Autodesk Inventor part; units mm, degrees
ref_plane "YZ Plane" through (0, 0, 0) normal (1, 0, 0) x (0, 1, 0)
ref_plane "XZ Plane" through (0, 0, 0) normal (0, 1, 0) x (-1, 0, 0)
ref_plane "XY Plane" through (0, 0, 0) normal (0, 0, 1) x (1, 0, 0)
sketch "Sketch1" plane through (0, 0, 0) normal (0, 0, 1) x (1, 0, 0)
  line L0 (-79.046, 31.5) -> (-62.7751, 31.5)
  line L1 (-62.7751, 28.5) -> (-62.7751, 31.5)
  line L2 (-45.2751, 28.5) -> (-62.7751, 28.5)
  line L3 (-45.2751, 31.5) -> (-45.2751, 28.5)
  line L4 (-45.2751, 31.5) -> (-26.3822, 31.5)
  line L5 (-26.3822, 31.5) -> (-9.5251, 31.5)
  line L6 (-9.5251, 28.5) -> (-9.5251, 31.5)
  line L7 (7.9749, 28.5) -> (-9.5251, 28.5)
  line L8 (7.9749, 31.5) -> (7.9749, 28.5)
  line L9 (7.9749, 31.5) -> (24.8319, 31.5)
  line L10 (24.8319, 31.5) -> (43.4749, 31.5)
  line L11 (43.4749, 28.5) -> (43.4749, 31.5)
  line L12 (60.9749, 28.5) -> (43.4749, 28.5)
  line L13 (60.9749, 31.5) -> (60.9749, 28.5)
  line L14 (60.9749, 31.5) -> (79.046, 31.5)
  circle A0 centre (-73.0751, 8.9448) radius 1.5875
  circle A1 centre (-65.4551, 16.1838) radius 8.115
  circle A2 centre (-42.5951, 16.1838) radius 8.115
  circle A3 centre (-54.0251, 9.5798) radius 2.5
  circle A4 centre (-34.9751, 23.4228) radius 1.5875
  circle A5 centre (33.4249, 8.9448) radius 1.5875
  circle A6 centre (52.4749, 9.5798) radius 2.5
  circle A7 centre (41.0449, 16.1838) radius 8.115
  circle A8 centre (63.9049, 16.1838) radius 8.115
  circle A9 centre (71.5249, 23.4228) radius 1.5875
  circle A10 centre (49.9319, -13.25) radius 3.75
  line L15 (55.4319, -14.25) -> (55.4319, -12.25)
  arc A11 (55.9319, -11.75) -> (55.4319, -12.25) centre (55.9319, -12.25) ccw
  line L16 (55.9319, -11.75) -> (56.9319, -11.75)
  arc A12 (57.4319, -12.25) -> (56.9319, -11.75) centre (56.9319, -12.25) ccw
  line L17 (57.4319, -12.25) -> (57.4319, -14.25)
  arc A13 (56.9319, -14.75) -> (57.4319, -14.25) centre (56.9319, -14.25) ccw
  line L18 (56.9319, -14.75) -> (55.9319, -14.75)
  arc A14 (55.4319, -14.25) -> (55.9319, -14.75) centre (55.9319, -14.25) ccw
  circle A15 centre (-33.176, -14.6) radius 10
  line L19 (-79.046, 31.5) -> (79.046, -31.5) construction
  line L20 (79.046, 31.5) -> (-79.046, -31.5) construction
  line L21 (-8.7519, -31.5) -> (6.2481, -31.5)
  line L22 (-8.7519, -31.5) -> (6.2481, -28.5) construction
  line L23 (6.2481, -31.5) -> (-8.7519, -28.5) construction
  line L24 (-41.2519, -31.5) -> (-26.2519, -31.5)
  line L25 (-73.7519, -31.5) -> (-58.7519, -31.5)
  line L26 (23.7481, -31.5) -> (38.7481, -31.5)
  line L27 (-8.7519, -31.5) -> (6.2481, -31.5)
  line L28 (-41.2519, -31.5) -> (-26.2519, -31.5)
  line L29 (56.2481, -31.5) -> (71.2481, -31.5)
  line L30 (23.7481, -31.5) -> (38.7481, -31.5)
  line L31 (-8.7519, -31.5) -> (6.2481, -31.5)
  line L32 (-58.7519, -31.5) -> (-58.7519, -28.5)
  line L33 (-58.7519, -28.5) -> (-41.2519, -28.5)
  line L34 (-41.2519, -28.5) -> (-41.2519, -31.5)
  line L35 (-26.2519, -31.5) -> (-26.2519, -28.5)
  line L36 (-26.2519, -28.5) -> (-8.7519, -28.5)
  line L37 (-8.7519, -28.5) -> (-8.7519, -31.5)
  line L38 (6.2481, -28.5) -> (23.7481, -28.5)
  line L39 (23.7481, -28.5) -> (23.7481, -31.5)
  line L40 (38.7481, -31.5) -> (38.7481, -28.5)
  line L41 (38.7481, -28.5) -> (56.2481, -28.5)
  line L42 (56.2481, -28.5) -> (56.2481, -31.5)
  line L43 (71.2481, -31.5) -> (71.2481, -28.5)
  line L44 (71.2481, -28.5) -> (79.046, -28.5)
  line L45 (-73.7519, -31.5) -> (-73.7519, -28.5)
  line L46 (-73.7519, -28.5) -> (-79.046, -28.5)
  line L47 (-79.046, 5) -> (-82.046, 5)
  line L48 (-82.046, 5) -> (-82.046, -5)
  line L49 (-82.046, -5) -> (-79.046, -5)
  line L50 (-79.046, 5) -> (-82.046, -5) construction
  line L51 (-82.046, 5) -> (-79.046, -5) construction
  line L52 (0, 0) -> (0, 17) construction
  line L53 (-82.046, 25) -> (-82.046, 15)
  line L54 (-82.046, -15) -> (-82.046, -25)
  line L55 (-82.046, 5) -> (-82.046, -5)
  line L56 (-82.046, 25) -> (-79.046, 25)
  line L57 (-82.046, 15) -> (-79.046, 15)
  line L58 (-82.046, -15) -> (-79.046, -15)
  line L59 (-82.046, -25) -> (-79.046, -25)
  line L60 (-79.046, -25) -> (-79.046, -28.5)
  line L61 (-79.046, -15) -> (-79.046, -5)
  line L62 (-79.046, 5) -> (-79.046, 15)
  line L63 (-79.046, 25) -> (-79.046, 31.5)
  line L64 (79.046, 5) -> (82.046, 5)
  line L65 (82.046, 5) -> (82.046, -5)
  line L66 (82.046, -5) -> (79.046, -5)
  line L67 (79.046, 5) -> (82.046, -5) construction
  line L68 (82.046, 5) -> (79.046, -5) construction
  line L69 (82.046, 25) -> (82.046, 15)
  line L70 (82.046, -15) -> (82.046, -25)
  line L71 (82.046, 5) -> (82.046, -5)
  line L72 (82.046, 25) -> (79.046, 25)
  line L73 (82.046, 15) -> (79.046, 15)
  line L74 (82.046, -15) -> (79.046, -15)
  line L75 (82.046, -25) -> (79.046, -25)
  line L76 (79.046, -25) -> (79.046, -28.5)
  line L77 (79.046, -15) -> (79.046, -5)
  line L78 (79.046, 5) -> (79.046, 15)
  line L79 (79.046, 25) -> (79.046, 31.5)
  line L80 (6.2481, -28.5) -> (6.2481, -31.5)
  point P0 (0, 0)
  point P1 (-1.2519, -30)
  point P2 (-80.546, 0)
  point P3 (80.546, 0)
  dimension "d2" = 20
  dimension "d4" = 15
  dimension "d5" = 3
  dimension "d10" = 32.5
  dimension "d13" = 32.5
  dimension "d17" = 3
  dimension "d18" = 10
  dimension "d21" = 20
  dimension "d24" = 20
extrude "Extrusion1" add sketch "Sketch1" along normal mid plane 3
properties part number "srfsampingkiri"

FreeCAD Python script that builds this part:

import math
import FreeCAD as App
import Part
import Sketcher
from FreeCAD import Vector
Q = App.Units.Quantity

doc = App.newDocument("Part")
params = doc.addObject("Spreadsheet::Sheet", "Params")
for row, (alias, value) in enumerate([
    ("sketch1_diameter", "20 mm"),
    ("sketch1_width", "3 mm"),
    ("sketch1_width2", "15 mm"),
    ("sketch1_height", "10 mm"),
    ("sketch1_diameter2", "5 mm"),
    ("pad1_length", "3 mm"),
], start=1):
    params.set(f"A{row}", alias)
    params.set(f"B{row}", "=" + value)
    params.setAlias(f"B{row}", alias)

body = doc.addObject("PartDesign::Body", "Body")

# Sketch on XY plane
sketch1 = doc.addObject("Sketcher::SketchObject", "Sketch")
body.addObject(sketch1)
sketch1.AttachmentSupport = (doc.XY_Plane, [""])
sketch1.MapMode = "FlatFace"
sketch1.addGeometry([
    Part.LineSegment(Vector(-62.8, 31.5, 0), Vector(-79, 31.5, 0)),  # 0
    Part.LineSegment(Vector(-79, 31.5, 0), Vector(-79, 25, 0)),  # 1
    Part.LineSegment(Vector(-79, 25, 0), Vector(-82, 25, 0)),  # 2
    Part.LineSegment(Vector(-82, 25, 0), Vector(-82, 15, 0)),  # 3
    Part.LineSegment(Vector(-82, 15, 0), Vector(-79, 15, 0)),  # 4
    Part.LineSegment(Vector(-79, 15, 0), Vector(-79, 5, 0)),  # 5
    Part.LineSegment(Vector(-79, 5, 0), Vector(-82, 5, 0)),  # 6
    Part.LineSegment(Vector(-82, 5, 0), Vector(-82, -5, 0)),  # 7
    Part.LineSegment(Vector(-82, -5, 0), Vector(-79, -5, 0)),  # 8
    Part.LineSegment(Vector(-79, -5, 0), Vector(-79, -15, 0)),  # 9
    Part.LineSegment(Vector(-79, -15, 0), Vector(-82, -15, 0)),  # 10
    Part.LineSegment(Vector(-82, -15, 0), Vector(-82, -25, 0)),  # 11
    Part.LineSegment(Vector(-82, -25, 0), Vector(-79, -25, 0)),  # 12
    Part.LineSegment(Vector(-79, -25, 0), Vector(-79, -28.5, 0)),  # 13
    Part.LineSegment(Vector(-79, -28.5, 0), Vector(-73.8, -28.5, 0)),  # 14
    Part.LineSegment(Vector(-73.8, -28.5, 0), Vector(-73.8, -31.5, 0)),  # 15
    Part.LineSegment(Vector(-73.8, -31.5, 0), Vector(-58.8, -31.5, 0)),  # 16
    Part.LineSegment(Vector(-58.8, -31.5, 0), Vector(-58.8, -28.5, 0)),  # 17
    Part.LineSegment(Vector(-58.8, -28.5, 0), Vector(-41.3, -28.5, 0)),  # 18
    Part.LineSegment(Vector(-41.3, -28.5, 0), Vector(-41.3, -31.5, 0)),  # 19
    Part.LineSegment(Vector(-41.3, -31.5, 0), Vector(-26.3, -31.5, 0)),  # 20
    Part.LineSegment(Vector(-26.3, -31.5, 0), Vector(-26.3, -28.5, 0)),  # 21
    Part.LineSegment(Vector(-26.3, -28.5, 0), Vector(-8.8, -28.5, 0)),  # 22
    Part.LineSegment(Vector(-8.8, -28.5, 0), Vector(-8.8, -31.5, 0)),  # 23
    Part.LineSegment(Vector(-8.8, -31.5, 0), Vector(6.2, -31.5, 0)),  # 24
    Part.LineSegment(Vector(6.2, -31.5, 0), Vector(6.2, -28.5, 0)),  # 25
    Part.LineSegment(Vector(6.2, -28.5, 0), Vector(23.7, -28.5, 0)),  # 26
    Part.LineSegment(Vector(23.7, -28.5, 0), Vector(23.7, -31.5, 0)),  # 27
    Part.LineSegment(Vector(23.7, -31.5, 0), Vector(38.7, -31.5, 0)),  # 28
    Part.LineSegment(Vector(38.7, -31.5, 0), Vector(38.7, -28.5, 0)),  # 29
    Part.LineSegment(Vector(38.7, -28.5, 0), Vector(56.2, -28.5, 0)),  # 30
    Part.LineSegment(Vector(56.2, -28.5, 0), Vector(56.2, -31.5, 0)),  # 31
    Part.LineSegment(Vector(56.2, -31.5, 0), Vector(71.2, -31.5, 0)),  # 32
    Part.LineSegment(Vector(71.2, -31.5, 0), Vector(71.2, -28.5, 0)),  # 33
    Part.LineSegment(Vector(71.2, -28.5, 0), Vector(79, -28.5, 0)),  # 34
    Part.LineSegment(Vector(79, -28.5, 0), Vector(79, -25, 0)),  # 35
    Part.LineSegment(Vector(79, -25, 0), Vector(82, -25, 0)),  # 36
    Part.LineSegment(Vector(82, -25, 0), Vector(82, -15, 0)),  # 37
    Part.LineSegment(Vector(82, -15, 0), Vector(79, -15, 0)),  # 38
    Part.LineSegment(Vector(79, -15, 0), Vector(79, -5, 0)),  # 39
    Part.LineSegment(Vector(79, -5, 0), Vector(82, -5, 0)),  # 40
    Part.LineSegment(Vector(82, -5, 0), Vector(82, 5, 0)),  # 41
    Part.LineSegment(Vector(82, 5, 0), Vector(79, 5, 0)),  # 42
    Part.LineSegment(Vector(79, 5, 0), Vector(79, 15, 0)),  # 43
    Part.LineSegment(Vector(79, 15, 0), Vector(82, 15, 0)),  # 44
    Part.LineSegment(Vector(82, 15, 0), Vector(82, 25, 0)),  # 45
    Part.LineSegment(Vector(82, 25, 0), Vector(79, 25, 0)),  # 46
    Part.LineSegment(Vector(79, 25, 0), Vector(79, 31.5, 0)),  # 47
    Part.LineSegment(Vector(79, 31.5, 0), Vector(61, 31.5, 0)),  # 48
    Part.LineSegment(Vector(61, 31.5, 0), Vector(61, 28.5, 0)),  # 49
    Part.LineSegment(Vector(61, 28.5, 0), Vector(43.5, 28.5, 0)),  # 50
    Part.LineSegment(Vector(43.5, 28.5, 0), Vector(43.5, 31.5, 0)),  # 51
    Part.LineSegment(Vector(43.5, 31.5, 0), Vector(8, 31.5, 0)),  # 52
    Part.LineSegment(Vector(8, 31.5, 0), Vector(8, 28.5, 0)),  # 53
    Part.LineSegment(Vector(8, 28.5, 0), Vector(-9.5, 28.5, 0)),  # 54
    Part.LineSegment(Vector(-9.5, 28.5, 0), Vector(-9.5, 31.5, 0)),  # 55
    Part.LineSegment(Vector(-9.5, 31.5, 0), Vector(-45.3, 31.5, 0)),  # 56
    Part.LineSegment(Vector(-45.3, 31.5, 0), Vector(-45.3, 28.5, 0)),  # 57
    Part.LineSegment(Vector(-45.3, 28.5, 0), Vector(-62.8, 28.5, 0)),  # 58
    Part.LineSegment(Vector(-62.8, 28.5, 0), Vector(-62.8, 31.5, 0)),  # 59
    Part.Circle(Vector(-33.2, -14.6, 0), Vector(0, 0, 1), 10),  # 60
    Part.Circle(Vector(49.9, -13.2, 0), Vector(0, 0, 1), 3.8),  # 61
    Part.ArcOfCircle(Part.Circle(Vector(55.9, -14.2, 0), Vector(0, 0, 1), 0.5), math.radians(180), math.radians(270)),  # 62
    Part.LineSegment(Vector(55.4, -14.2, 0), Vector(55.4, -12.2, 0)),  # 63
    Part.ArcOfCircle(Part.Circle(Vector(55.9, -12.2, 0), Vector(0, 0, 1), 0.5), math.radians(90), math.radians(180)),  # 64
    Part.LineSegment(Vector(55.9, -11.8, 0), Vector(56.9, -11.8, 0)),  # 65
    Part.ArcOfCircle(Part.Circle(Vector(56.9, -12.2, 0), Vector(0, 0, 1), 0.5), math.radians(0), math.radians(90)),  # 66
    Part.LineSegment(Vector(57.4, -12.2, 0), Vector(57.4, -14.2, 0)),  # 67
    Part.ArcOfCircle(Part.Circle(Vector(56.9, -14.2, 0), Vector(0, 0, 1), 0.5), math.radians(-90), math.radians(0)),  # 68
    Part.LineSegment(Vector(56.9, -14.8, 0), Vector(55.9, -14.8, 0)),  # 69
    Part.Circle(Vector(-73.1, 8.9, 0), Vector(0, 0, 1), 1.6),  # 70
    Part.Circle(Vector(-54, 9.6, 0), Vector(0, 0, 1), 2.5),  # 71
    Part.Circle(Vector(-65.5, 16.2, 0), Vector(0, 0, 1), 8.1),  # 72
    Part.Circle(Vector(-42.6, 16.2, 0), Vector(0, 0, 1), 8.1),  # 73
    Part.Circle(Vector(-35, 23.4, 0), Vector(0, 0, 1), 1.6),  # 74
    Part.Circle(Vector(33.4, 8.9, 0), Vector(0, 0, 1), 1.6),  # 75
    Part.Circle(Vector(52.5, 9.6, 0), Vector(0, 0, 1), 2.5),  # 76
    Part.Circle(Vector(41, 16.2, 0), Vector(0, 0, 1), 8.1),  # 77
    Part.Circle(Vector(63.9, 16.2, 0), Vector(0, 0, 1), 8.1),  # 78
    Part.Circle(Vector(71.5, 23.4, 0), Vector(0, 0, 1), 1.6),  # 79
], False)
sketch1.addConstraint([
    Sketcher.Constraint("Coincident", 0, 2, 1, 1),
    Sketcher.Constraint("Coincident", 1, 2, 2, 1),
    Sketcher.Constraint("Coincident", 2, 2, 3, 1),
    Sketcher.Constraint("Coincident", 3, 2, 4, 1),
    Sketcher.Constraint("Coincident", 4, 2, 5, 1),
    Sketcher.Constraint("Coincident", 5, 2, 6, 1),
    Sketcher.Constraint("Coincident", 6, 2, 7, 1),
    Sketcher.Constraint("Coincident", 7, 2, 8, 1),
    Sketcher.Constraint("Coincident", 8, 2, 9, 1),
    Sketcher.Constraint("Coincident", 9, 2, 10, 1),
    Sketcher.Constraint("Coincident", 10, 2, 11, 1),
    Sketcher.Constraint("Coincident", 11, 2, 12, 1),
    Sketcher.Constraint("Coincident", 12, 2, 13, 1),
    Sketcher.Constraint("Coincident", 13, 2, 14, 1),
    Sketcher.Constraint("Coincident", 14, 2, 15, 1),
    Sketcher.Constraint("Coincident", 15, 2, 16, 1),
    Sketcher.Constraint("Coincident", 16, 2, 17, 1),
    Sketcher.Constraint("Coincident", 17, 2, 18, 1),
    Sketcher.Constraint("Coincident", 18, 2, 19, 1),
    Sketcher.Constraint("Coincident", 19, 2, 20, 1),
    Sketcher.Constraint("Coincident", 20, 2, 21, 1),
    Sketcher.Constraint("Coincident", 21, 2, 22, 1),
    Sketcher.Constraint("Coincident", 22, 2, 23, 1),
    Sketcher.Constraint("Coincident", 23, 2, 24, 1),
    Sketcher.Constraint("Coincident", 24, 2, 25, 1),
    Sketcher.Constraint("Coincident", 25, 2, 26, 1),
    Sketcher.Constraint("Coincident", 26, 2, 27, 1),
    Sketcher.Constraint("Coincident", 27, 2, 28, 1),
    Sketcher.Constraint("Coincident", 28, 2, 29, 1),
    Sketcher.Constraint("Coincident", 29, 2, 30, 1),
    Sketcher.Constraint("Coincident", 30, 2, 31, 1),
    Sketcher.Constraint("Coincident", 31, 2, 32, 1),
    Sketcher.Constraint("Coincident", 32, 2, 33, 1),
    Sketcher.Constraint("Coincident", 33, 2, 34, 1),
    Sketcher.Constraint("Coincident", 34, 2, 35, 1),
    Sketcher.Constraint("Coincident", 35, 2, 36, 1),
    Sketcher.Constraint("Coincident", 36, 2, 37, 1),
    Sketcher.Constraint("Coincident", 37, 2, 38, 1),
    Sketcher.Constraint("Coincident", 38, 2, 39, 1),
    Sketcher.Constraint("Coincident", 39, 2, 40, 1),
    Sketcher.Constraint("Coincident", 40, 2, 41, 1),
    Sketcher.Constraint("Coincident", 41, 2, 42, 1),
    Sketcher.Constraint("Coincident", 42, 2, 43, 1),
    Sketcher.Constraint("Coincident", 43, 2, 44, 1),
    Sketcher.Constraint("Coincident", 44, 2, 45, 1),
    Sketcher.Constraint("Coincident", 45, 2, 46, 1),
    Sketcher.Constraint("Coincident", 46, 2, 47, 1),
    Sketcher.Constraint("Coincident", 47, 2, 48, 1),
    Sketcher.Constraint("Coincident", 48, 2, 49, 1),
    Sketcher.Constraint("Coincident", 49, 2, 50, 1),
    Sketcher.Constraint("Coincident", 50, 2, 51, 1),
    Sketcher.Constraint("Coincident", 51, 2, 52, 1),
    Sketcher.Constraint("Coincident", 52, 2, 53, 1),
    Sketcher.Constraint("Coincident", 53, 2, 54, 1),
    Sketcher.Constraint("Coincident", 54, 2, 55, 1),
    Sketcher.Constraint("Coincident", 55, 2, 56, 1),
    Sketcher.Constraint("Coincident", 56, 2, 57, 1),
    Sketcher.Constraint("Coincident", 57, 2, 58, 1),
    Sketcher.Constraint("Coincident", 58, 2, 59, 1),
    Sketcher.Constraint("Coincident", 59, 2, 0, 1),
    Sketcher.Constraint("Tangent", 62, 1, 63, 1),
    Sketcher.Constraint("Tangent", 63, 2, 64, 2),
    Sketcher.Constraint("Tangent", 64, 1, 65, 1),
    Sketcher.Constraint("Tangent", 65, 2, 66, 2),
    Sketcher.Constraint("Tangent", 66, 1, 67, 1),
    Sketcher.Constraint("Tangent", 67, 2, 68, 2),
    Sketcher.Constraint("Tangent", 68, 1, 69, 1),
    Sketcher.Constraint("Tangent", 69, 2, 62, 2),
    Sketcher.Constraint("Horizontal", 0),
    Sketcher.Constraint("Vertical", 1),
    Sketcher.Constraint("Horizontal", 2),
    Sketcher.Constraint("Vertical", 3),
    Sketcher.Constraint("Horizontal", 4),
    Sketcher.Constraint("Vertical", 5),
    Sketcher.Constraint("Horizontal", 6),
    Sketcher.Constraint("Vertical", 7),
    Sketcher.Constraint("Horizontal", 8),
    Sketcher.Constraint("Vertical", 9),
    Sketcher.Constraint("Horizontal", 10),
    Sketcher.Constraint("Vertical", 11),
    Sketcher.Constraint("Horizontal", 12),
    Sketcher.Constraint("Vertical", 13),
    Sketcher.Constraint("Horizontal", 14),
    Sketcher.Constraint("Vertical", 15),
    Sketcher.Constraint("Horizontal", 16),
    Sketcher.Constraint("Vertical", 17),
    Sketcher.Constraint("Horizontal", 18),
    Sketcher.Constraint("Vertical", 19),
    Sketcher.Constraint("Horizontal", 20),
    Sketcher.Constraint("Vertical", 21),
    Sketcher.Constraint("Horizontal", 22),
    Sketcher.Constraint("Vertical", 23),
    Sketcher.Constraint("Horizontal", 24),
    Sketcher.Constraint("Vertical", 25),
    Sketcher.Constraint("Horizontal", 26),
    Sketcher.Constraint("Vertical", 27),
    Sketcher.Constraint("Horizontal", 28),
    Sketcher.Constraint("Vertical", 29),
    Sketcher.Constraint("Horizontal", 30),
    Sketcher.Constraint("Vertical", 31),
    Sketcher.Constraint("Horizontal", 32),
    Sketcher.Constraint("Vertical", 33),
    Sketcher.Constraint("Horizontal", 34),
    Sketcher.Constraint("Vertical", 35),
    Sketcher.Constraint("Horizontal", 36),
    Sketcher.Constraint("Vertical", 37),
    Sketcher.Constraint("Horizontal", 38),
    Sketcher.Constraint("Vertical", 39),
    Sketcher.Constraint("Horizontal", 40),
    Sketcher.Constraint("Vertical", 41),
    Sketcher.Constraint("Horizontal", 42),
    Sketcher.Constraint("Vertical", 43),
    Sketcher.Constraint("Horizontal", 44),
    Sketcher.Constraint("Vertical", 45),
    Sketcher.Constraint("Horizontal", 46),
    Sketcher.Constraint("Vertical", 47),
    Sketcher.Constraint("Horizontal", 48),
    Sketcher.Constraint("Vertical", 49),
    Sketcher.Constraint("Horizontal", 50),
    Sketcher.Constraint("Vertical", 51),
    Sketcher.Constraint("Horizontal", 52),
    Sketcher.Constraint("Vertical", 53),
    Sketcher.Constraint("Horizontal", 54),
    Sketcher.Constraint("Vertical", 55),
    Sketcher.Constraint("Horizontal", 56),
    Sketcher.Constraint("Vertical", 57),
    Sketcher.Constraint("Horizontal", 58),
    Sketcher.Constraint("Vertical", 59),
    Sketcher.Constraint("Vertical", 63),
    Sketcher.Constraint("Horizontal", 65),
    Sketcher.Constraint("Vertical", 67),
    Sketcher.Constraint("Horizontal", 69),
    Sketcher.Constraint("Equal", 62, 64),
    Sketcher.Constraint("Equal", 64, 66),
    Sketcher.Constraint("Equal", 66, 68),
    Sketcher.Constraint("Equal", 72, 73),
    Sketcher.Constraint("Equal", 70, 74),
    Sketcher.Constraint("Equal", 74, 75),
    Sketcher.Constraint("Equal", 71, 76),
    Sketcher.Constraint("Equal", 73, 77),
    Sketcher.Constraint("Equal", 77, 78),
    Sketcher.Constraint("Equal", 75, 79),
    Sketcher.Constraint("Symmetric", 1, 2, 35, 2, -1, 1),
    Sketcher.Constraint("Symmetric", 3, 2, 37, 2, -1, 1),
    Sketcher.Constraint("Symmetric", 5, 2, 39, 2, -1, 1),
    Sketcher.Constraint("Symmetric", 7, 2, 41, 2, -1, 1),
    Sketcher.Constraint("Symmetric", 9, 2, 43, 2, -1, 1),
    Sketcher.Constraint("Symmetric", 11, 2, 45, 2, -1, 1),
    Sketcher.Constraint("Symmetric", 13, 2, 34, 2, -2),
    Sketcher.Constraint("Symmetric", 11, 2, 36, 2, -2),
    Sketcher.Constraint("Symmetric", 9, 2, 38, 2, -2),
    Sketcher.Constraint("Symmetric", 0, 2, 47, 2, -2),
    Sketcher.Constraint("Horizontal", 72, 3, 73, 3),
    Sketcher.Constraint("Horizontal", 70, 3, 75, 3),
    Sketcher.Constraint("Horizontal", 71, 3, 76, 3),
    Sketcher.Constraint("Horizontal", 73, 3, 77, 3),
    Sketcher.Constraint("Horizontal", 77, 3, 78, 3),
    Sketcher.Constraint("Horizontal", 74, 3, 79, 3),
    Sketcher.Constraint("Horizontal", 14, 2, 17, 2),
    Sketcher.Constraint("Horizontal", 16, 2, 19, 2),
    Sketcher.Constraint("Horizontal", 18, 2, 21, 2),
    Sketcher.Constraint("Horizontal", 20, 2, 23, 2),
    Sketcher.Constraint("Horizontal", 22, 2, 25, 2),
    Sketcher.Constraint("Horizontal", 24, 2, 27, 2),
    Sketcher.Constraint("Horizontal", 26, 2, 29, 2),
    Sketcher.Constraint("Horizontal", 28, 2, 31, 2),
    Sketcher.Constraint("Horizontal", 8, 2, 39, 2),
    Sketcher.Constraint("Horizontal", 48, 2, 51, 2),
    Sketcher.Constraint("Horizontal", 50, 2, 53, 2),
    Sketcher.Constraint("Horizontal", 52, 2, 55, 2),
    Sketcher.Constraint("Horizontal", 54, 2, 57, 2),
    Sketcher.Constraint("Vertical", 1, 2, 4, 2),
    Sketcher.Constraint("Vertical", 3, 2, 6, 2),
    Sketcher.Constraint("Equal", 16, 20),
    Sketcher.Constraint("Equal", 18, 22),
    Sketcher.Constraint("Equal", 20, 24),
    Sketcher.Constraint("Equal", 22, 26),
    Sketcher.Constraint("Equal", 24, 28),
    Sketcher.Constraint("Equal", 26, 30),
    Sketcher.Constraint("Equal", 28, 32),
    Sketcher.Constraint("Equal", 30, 50),
    Sketcher.Constraint("Equal", 50, 54),
    Sketcher.Constraint("Equal", 54, 58),
    Sketcher.Constraint("Equal", 3, 5),
    Sketcher.Constraint("Equal", 5, 7),
    Sketcher.Constraint("Equal", 46, 15),
    Sketcher.Constraint("Equal", 33, 49),
    Sketcher.Constraint("Diameter", 60, Q("20 mm")),
    Sketcher.Constraint("DistanceX", 2, 2, 2, 1, Q("3 mm")),
    Sketcher.Constraint("DistanceX", 16, 1, 16, 2, Q("15 mm")),
    Sketcher.Constraint("DistanceY", 3, 2, 3, 1, Q("10 mm")),
    Sketcher.Constraint("Diameter", 71, Q("5 mm")),
    Sketcher.Constraint("Diameter", 61, Q("7.5 mm")),
    Sketcher.Constraint("Radius", 62, Q("0.5 mm")),
    Sketcher.Constraint("Diameter", 72, Q("16.23 mm")),
    Sketcher.Constraint("DistanceX", 65, 1, 65, 2, Q("1 mm")),
    Sketcher.Constraint("DistanceY", 63, 1, 63, 2, Q("2 mm")),
    Sketcher.Constraint("Diameter", 70, Q("3.175 mm")),
    Sketcher.Constraint("DistanceX", 18, 1, 18, 2, Q("17.5 mm")),
    Sketcher.Constraint("DistanceX", 52, 2, 52, 1, Q("35.5 mm")),
    Sketcher.Constraint("DistanceY", 1, 2, 1, 1, Q("6.5 mm")),
    Sketcher.Constraint("DistanceY", 13, 2, 13, 1, Q("3.5 mm")),
    Sketcher.Constraint("DistanceX", 56, 2, 56, 1, Q("35.75 mm")),
    Sketcher.Constraint("DistanceY", 60, 3, -1, 1, Q("14.6 mm")),
    Sketcher.Constraint("DistanceX", 0, 2, 0, 1, Q("16.271 mm")),
    Sketcher.Constraint("DistanceX", 14, 1, 14, 2, Q("5.294 mm")),
    Sketcher.Constraint("DistanceX", 34, 1, 34, 2, Q("7.798 mm")),
    Sketcher.Constraint("DistanceY", 61, 3, -1, 1, Q("13.25 mm")),
    Sketcher.Constraint("DistanceY", 62, 3, -1, 1, Q("14.25 mm")),
    Sketcher.Constraint("DistanceX", 60, 3, -1, 1, Q("33.176 mm")),
    Sketcher.Constraint("DistanceX", -1, 1, 61, 3, Q("49.932 mm")),
    Sketcher.Constraint("DistanceX", -1, 1, 62, 3, Q("55.932 mm")),
    Sketcher.Constraint("DistanceX", 70, 3, -1, 1, Q("73.075 mm")),
    Sketcher.Constraint("DistanceX", 71, 3, -1, 1, Q("54.025 mm")),
    Sketcher.Constraint("DistanceX", 72, 3, -1, 1, Q("65.455 mm")),
    Sketcher.Constraint("DistanceX", 73, 3, -1, 1, Q("42.595 mm")),
    Sketcher.Constraint("DistanceX", 74, 3, -1, 1, Q("34.975 mm")),
    Sketcher.Constraint("DistanceX", -1, 1, 75, 3, Q("33.425 mm")),
    Sketcher.Constraint("DistanceX", -1, 1, 76, 3, Q("52.475 mm")),
    Sketcher.Constraint("DistanceX", -1, 1, 77, 3, Q("41.045 mm")),
    Sketcher.Constraint("DistanceX", -1, 1, 78, 3, Q("63.905 mm")),
    Sketcher.Constraint("DistanceX", -1, 1, 79, 3, Q("71.525 mm")),
    Sketcher.Constraint("DistanceY", -1, 1, 70, 3, Q("8.9448 mm")),
    Sketcher.Constraint("DistanceY", -1, 1, 71, 3, Q("9.5798 mm")),
    Sketcher.Constraint("DistanceY", -1, 1, 72, 3, Q("16.1838 mm")),
    Sketcher.Constraint("DistanceY", -1, 1, 74, 3, Q("23.4228 mm")),
])
sketch1.setExpression("Constraints[187]", "Params.sketch1_diameter")
sketch1.setExpression("Constraints[188]", "Params.sketch1_width")
sketch1.setExpression("Constraints[189]", "Params.sketch1_width2")
sketch1.setExpression("Constraints[190]", "Params.sketch1_height")
sketch1.setExpression("Constraints[191]", "Params.sketch1_diameter2")
pad1 = doc.addObject("PartDesign::Pad", "Pad")
body.addObject(pad1)
pad1.Profile = sketch1
pad1.setExpression("Length", "Params.pad1_length")
pad1.Midplane = True

doc.recompute()
